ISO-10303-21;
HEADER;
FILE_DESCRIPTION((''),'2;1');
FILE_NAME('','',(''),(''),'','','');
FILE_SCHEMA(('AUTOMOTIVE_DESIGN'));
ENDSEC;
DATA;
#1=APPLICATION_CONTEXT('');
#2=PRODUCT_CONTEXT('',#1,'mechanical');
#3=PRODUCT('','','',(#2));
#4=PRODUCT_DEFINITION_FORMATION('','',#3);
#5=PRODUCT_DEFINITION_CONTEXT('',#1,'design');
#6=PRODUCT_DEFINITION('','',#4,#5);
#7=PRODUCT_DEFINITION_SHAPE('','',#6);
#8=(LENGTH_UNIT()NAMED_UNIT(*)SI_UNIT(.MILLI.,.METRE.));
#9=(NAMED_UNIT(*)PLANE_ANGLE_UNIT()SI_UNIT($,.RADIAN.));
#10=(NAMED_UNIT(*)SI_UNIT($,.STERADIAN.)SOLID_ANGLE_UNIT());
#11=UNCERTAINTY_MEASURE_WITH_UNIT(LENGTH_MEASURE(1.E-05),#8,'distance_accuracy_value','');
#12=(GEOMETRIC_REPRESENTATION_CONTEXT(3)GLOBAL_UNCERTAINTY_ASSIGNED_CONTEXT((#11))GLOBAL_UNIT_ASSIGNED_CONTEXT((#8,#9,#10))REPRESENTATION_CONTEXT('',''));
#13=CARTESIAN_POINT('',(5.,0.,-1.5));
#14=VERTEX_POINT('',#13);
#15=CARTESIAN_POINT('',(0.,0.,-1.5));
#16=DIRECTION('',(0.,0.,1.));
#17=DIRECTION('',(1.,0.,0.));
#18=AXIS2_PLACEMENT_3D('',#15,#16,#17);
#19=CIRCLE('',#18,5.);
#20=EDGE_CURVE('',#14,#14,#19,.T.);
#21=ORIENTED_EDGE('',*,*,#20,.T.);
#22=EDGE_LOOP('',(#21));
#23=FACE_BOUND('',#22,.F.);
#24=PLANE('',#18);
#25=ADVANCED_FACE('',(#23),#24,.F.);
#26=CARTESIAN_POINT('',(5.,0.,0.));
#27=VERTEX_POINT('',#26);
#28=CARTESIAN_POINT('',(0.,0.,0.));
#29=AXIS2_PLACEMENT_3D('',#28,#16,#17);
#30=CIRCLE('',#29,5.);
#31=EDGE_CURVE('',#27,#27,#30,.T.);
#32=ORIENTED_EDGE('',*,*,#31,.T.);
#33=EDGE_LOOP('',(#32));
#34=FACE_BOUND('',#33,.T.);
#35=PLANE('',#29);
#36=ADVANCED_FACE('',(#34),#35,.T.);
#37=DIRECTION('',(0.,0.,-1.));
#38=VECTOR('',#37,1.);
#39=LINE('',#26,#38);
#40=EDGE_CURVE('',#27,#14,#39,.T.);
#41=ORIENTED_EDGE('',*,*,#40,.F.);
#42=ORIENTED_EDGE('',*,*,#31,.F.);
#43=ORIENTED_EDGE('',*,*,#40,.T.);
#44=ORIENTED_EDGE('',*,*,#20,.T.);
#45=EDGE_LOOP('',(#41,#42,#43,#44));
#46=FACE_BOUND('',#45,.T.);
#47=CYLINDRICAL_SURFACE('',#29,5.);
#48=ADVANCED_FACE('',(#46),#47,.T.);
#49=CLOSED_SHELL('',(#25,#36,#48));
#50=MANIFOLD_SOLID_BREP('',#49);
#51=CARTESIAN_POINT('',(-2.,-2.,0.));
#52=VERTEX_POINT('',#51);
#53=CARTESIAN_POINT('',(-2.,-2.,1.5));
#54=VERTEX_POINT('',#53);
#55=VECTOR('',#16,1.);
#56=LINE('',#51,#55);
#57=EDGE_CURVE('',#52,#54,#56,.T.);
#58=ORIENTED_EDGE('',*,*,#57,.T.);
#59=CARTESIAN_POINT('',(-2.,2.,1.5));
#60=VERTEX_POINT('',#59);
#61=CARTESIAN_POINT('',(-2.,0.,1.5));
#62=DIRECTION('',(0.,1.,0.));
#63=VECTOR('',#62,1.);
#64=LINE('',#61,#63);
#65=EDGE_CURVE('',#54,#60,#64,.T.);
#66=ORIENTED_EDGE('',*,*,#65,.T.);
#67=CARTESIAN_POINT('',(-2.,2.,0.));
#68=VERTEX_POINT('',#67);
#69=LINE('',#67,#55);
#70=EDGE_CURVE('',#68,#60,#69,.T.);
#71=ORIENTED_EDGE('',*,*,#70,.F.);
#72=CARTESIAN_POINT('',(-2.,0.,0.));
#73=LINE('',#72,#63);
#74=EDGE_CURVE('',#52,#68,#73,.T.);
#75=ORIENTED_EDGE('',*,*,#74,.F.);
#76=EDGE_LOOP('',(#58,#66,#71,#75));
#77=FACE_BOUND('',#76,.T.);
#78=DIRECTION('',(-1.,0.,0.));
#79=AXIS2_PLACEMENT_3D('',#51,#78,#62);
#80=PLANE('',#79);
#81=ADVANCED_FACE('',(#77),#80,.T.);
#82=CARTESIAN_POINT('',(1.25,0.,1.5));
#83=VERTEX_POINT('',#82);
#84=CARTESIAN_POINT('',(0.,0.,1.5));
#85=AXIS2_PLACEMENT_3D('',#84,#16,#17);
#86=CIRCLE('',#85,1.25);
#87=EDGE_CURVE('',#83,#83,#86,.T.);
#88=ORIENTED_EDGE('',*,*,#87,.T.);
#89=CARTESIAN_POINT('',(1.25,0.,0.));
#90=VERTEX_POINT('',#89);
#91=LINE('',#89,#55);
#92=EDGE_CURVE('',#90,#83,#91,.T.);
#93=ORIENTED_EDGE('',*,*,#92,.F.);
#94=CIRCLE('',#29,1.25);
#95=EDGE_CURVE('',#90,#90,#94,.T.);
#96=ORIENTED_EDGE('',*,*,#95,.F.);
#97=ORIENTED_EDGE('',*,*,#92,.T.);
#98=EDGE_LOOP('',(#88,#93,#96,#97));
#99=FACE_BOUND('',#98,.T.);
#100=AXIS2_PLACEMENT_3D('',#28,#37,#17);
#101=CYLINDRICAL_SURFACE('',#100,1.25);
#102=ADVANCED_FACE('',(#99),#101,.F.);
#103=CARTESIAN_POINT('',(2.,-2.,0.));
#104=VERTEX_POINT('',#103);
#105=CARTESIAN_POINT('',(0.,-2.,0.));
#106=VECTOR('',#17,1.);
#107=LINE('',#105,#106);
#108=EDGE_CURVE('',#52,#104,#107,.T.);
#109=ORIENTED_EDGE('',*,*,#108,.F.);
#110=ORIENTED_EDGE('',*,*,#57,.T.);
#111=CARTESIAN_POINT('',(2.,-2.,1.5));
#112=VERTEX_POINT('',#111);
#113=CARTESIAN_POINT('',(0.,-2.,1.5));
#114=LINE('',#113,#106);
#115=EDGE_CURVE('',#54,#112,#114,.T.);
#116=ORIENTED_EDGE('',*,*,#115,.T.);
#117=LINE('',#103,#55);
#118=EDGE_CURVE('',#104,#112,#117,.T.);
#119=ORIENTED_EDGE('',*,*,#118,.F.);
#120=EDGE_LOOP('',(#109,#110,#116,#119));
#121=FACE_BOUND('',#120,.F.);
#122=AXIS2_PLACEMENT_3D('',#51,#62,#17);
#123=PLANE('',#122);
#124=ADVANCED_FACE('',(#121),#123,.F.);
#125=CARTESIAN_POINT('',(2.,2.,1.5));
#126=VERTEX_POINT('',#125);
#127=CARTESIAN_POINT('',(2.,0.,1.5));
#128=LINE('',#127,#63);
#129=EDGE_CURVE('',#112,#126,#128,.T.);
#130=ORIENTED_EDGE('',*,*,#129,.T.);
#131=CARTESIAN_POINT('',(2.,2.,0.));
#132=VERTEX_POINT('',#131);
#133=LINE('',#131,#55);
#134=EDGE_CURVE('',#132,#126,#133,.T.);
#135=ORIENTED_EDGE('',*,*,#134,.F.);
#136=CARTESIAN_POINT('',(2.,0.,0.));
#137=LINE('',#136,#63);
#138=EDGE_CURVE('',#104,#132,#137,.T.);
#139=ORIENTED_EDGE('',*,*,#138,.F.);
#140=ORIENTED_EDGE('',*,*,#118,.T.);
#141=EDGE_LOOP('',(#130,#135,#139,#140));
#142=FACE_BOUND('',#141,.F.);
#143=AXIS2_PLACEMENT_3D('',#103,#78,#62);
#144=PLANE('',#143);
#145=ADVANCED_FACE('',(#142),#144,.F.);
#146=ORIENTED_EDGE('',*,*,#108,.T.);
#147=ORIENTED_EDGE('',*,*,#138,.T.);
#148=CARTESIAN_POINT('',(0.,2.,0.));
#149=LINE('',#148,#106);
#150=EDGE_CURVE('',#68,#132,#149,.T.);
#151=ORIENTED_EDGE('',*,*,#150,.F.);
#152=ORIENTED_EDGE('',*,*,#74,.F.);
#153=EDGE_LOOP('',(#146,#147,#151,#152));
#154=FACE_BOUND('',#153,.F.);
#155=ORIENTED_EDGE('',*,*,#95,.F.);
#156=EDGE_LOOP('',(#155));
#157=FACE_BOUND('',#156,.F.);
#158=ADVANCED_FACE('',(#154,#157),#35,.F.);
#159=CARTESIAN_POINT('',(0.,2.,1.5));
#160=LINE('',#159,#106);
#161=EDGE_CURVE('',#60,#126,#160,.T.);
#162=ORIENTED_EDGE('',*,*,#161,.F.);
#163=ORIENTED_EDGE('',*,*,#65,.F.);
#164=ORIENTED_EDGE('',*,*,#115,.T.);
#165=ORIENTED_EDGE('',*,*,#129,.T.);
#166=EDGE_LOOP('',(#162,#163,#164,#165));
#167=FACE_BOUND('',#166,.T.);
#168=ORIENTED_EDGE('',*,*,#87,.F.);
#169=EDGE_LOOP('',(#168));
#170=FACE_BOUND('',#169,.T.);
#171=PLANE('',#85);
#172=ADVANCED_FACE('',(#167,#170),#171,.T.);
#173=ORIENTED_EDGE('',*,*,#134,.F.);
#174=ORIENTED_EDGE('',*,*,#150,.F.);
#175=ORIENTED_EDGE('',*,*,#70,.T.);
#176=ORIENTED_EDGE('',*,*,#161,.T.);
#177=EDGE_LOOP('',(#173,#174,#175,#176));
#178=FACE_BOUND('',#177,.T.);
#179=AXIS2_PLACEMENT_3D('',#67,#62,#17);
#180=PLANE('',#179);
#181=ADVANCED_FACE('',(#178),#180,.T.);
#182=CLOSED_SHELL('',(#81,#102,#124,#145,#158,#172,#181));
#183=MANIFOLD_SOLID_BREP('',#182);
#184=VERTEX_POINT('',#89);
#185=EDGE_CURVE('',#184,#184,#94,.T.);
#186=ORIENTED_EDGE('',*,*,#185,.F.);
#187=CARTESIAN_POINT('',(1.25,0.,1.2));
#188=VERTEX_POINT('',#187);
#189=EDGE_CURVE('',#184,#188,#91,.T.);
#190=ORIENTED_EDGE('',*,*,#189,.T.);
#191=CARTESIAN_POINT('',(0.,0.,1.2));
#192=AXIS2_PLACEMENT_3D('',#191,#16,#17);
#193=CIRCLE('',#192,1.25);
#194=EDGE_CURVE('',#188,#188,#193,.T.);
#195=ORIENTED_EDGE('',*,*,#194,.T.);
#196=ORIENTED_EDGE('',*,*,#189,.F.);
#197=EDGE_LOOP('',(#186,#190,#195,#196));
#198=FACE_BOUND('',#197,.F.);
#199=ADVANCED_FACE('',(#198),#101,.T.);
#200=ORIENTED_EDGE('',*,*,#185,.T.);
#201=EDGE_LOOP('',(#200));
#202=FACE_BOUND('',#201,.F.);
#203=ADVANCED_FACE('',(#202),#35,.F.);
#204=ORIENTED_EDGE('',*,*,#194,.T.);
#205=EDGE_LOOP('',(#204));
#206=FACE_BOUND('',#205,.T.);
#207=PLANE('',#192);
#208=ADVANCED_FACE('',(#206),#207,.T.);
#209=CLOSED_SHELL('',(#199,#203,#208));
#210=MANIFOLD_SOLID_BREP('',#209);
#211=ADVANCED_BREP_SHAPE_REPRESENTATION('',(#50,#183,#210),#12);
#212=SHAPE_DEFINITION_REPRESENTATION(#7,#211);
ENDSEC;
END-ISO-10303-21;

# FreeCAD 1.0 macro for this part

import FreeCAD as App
import Part
import Sketcher
from FreeCAD import Vector
Q = App.Units.Quantity

doc = App.newDocument("Part")
body = doc.addObject("PartDesign::Body", "Body")

# Sketch on XY plane
sketch1 = body.newObject("Sketcher::SketchObject", "Sketch")
sketch1.AttachmentSupport = (doc.getObject("XY_Plane"), [""])
sketch1.MapMode = "FlatFace"
sketch1.addGeometry(Part.Circle(Vector(0, 0, 0), Vector(0, 0, 1), 5), False)
sketch1.addConstraint([
    Sketcher.Constraint("Coincident", 0, 3, -1, 1),
    Sketcher.Constraint("Diameter", 0, Q("10 mm")),
])
pad1 = body.newObject("PartDesign::Pad", "Pad")
pad1.Profile = sketch1
pad1.Length = 1.5
pad1.Reversed = True
body2 = doc.addObject("PartDesign::Body", "Body001")

# Sketch on XY plane
sketch2 = body2.newObject("Sketcher::SketchObject", "Sketch001")
sketch2.AttachmentSupport = (doc.getObject("XY_Plane001"), [""])
sketch2.MapMode = "FlatFace"
sketch2.addGeometry([
    Part.LineSegment(Vector(-2, 2, 0), Vector(-2, -2, 0)),  # 0
    Part.LineSegment(Vector(-2, -2, 0), Vector(2, -2, 0)),  # 1
    Part.LineSegment(Vector(2, -2, 0), Vector(2, 2, 0)),  # 2
    Part.LineSegment(Vector(2, 2, 0), Vector(-2, 2, 0)),  # 3
    Part.Circle(Vector(0, 0, 0), Vector(0, 0, 1), 1.25),  # 4
], False)
sketch2.addConstraint([
    Sketcher.Constraint("Coincident", 0, 2, 1, 1),
    Sketcher.Constraint("Coincident", 1, 2, 2, 1),
    Sketcher.Constraint("Coincident", 2, 2, 3, 1),
    Sketcher.Constraint("Coincident", 3, 2, 0, 1),
    Sketcher.Constraint("Vertical", 0),
    Sketcher.Constraint("Horizontal", 1),
    Sketcher.Constraint("Vertical", 2),
    Sketcher.Constraint("Horizontal", 3),
    Sketcher.Constraint("Coincident", 4, 3, -1, 1),
    Sketcher.Constraint("Symmetric", 0, 2, 2, 2, -1, 1),
    Sketcher.Constraint("Equal", 3, 0),
    Sketcher.Constraint("Diameter", 4, Q("2.5 mm")),
    Sketcher.Constraint("DistanceX", 1, 1, 1, 2, Q("4 mm")),
])
pad2 = body2.newObject("PartDesign::Pad", "Pad001")
pad2.Profile = sketch2
pad2.Length = 1.5
body3 = doc.addObject("PartDesign::Body", "Body002")

# Sketch on XY plane
sketch3 = body3.newObject("Sketcher::SketchObject", "Sketch002")
sketch3.AttachmentSupport = (doc.getObject("XY_Plane002"), [""])
sketch3.MapMode = "FlatFace"
sketch3.addGeometry(Part.Circle(Vector(0, 0, 0), Vector(0, 0, 1), 1.25), False)
sketch3.addConstraint([
    Sketcher.Constraint("Coincident", 0, 3, -1, 1),
    Sketcher.Constraint("Diameter", 0, Q("2.5 mm")),
])
pad3 = body3.newObject("PartDesign::Pad", "Pad002")
pad3.Profile = sketch3
pad3.Length = 1.2

doc.recompute()
